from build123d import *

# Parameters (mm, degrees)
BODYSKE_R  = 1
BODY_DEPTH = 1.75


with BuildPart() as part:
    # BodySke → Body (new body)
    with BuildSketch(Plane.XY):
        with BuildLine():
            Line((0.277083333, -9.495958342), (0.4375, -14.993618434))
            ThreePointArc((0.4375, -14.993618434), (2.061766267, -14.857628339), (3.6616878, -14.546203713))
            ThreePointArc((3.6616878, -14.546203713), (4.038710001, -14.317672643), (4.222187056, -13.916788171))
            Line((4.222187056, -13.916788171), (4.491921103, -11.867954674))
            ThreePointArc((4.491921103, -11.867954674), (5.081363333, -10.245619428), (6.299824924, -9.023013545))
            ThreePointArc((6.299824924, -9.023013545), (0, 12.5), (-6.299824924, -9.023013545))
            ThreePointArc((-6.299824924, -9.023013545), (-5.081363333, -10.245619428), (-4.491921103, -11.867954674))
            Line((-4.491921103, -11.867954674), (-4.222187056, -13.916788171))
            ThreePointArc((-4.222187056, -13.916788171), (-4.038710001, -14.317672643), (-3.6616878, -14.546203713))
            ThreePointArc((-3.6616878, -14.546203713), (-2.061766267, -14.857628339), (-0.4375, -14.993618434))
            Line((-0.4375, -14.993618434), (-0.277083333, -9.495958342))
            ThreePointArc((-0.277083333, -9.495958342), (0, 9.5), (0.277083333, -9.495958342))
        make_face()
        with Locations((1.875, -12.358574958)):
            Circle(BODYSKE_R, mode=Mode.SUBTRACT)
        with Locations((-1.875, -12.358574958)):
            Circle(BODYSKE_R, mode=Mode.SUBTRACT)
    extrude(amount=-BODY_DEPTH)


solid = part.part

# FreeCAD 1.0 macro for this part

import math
import FreeCAD as App
import Part
import Sketcher

V = App.Vector
Q = App.Units.Quantity

doc = App.newDocument("Part")
body = doc.addObject("PartDesign::Body", "Body")

# Sketch on XY plane
sketch1 = body.newObject("Sketcher::SketchObject", "Sketch")
sketch1.AttachmentSupport = (doc.getObject("XY_Plane"), [""])
sketch1.MapMode = "FlatFace"
sketch1.addGeometry(Part.LineSegment(V(0.3, -9.5, 0), V(0.4, -15, 0)), False)
sketch1.addGeometry(Part.ArcOfCircle(Part.Circle(V(0, 0, 0), V(0, 0, 1), 15), math.radians(-88.33), math.radians(-75.87)), False)
sketch1.addGeometry(Part.ArcOfCircle(Part.Circle(V(3.5, -13.8, 0), V(0, 0, 1), 0.8), math.radians(-76), math.radians(-8)), False)
sketch1.addGeometry(Part.LineSegment(V(4.2, -13.9, 0), V(4.5, -11.9, 0)), False)
sketch1.addGeometry(Part.ArcOfCircle(Part.Circle(V(8.5, -12.4, 0), V(0, 0, 1), 4), math.radians(123), math.radians(173)), False)
sketch1.addGeometry(Part.ArcOfCircle(Part.Circle(V(0, 0.8, 0), V(0, 0, 1), 11.7), math.radians(-57), math.radians(237)), False)
sketch1.addGeometry(Part.ArcOfCircle(Part.Circle(V(-8.5, -12.4, 0), V(0, 0, 1), 4), math.radians(7), math.radians(57)), False)
sketch1.addGeometry(Part.LineSegment(V(-4.5, -11.9, 0), V(-4.2, -13.9, 0)), False)
sketch1.addGeometry(Part.ArcOfCircle(Part.Circle(V(-3.5, -13.8, 0), V(0, 0, 1), 0.8), math.radians(-172), math.radians(-104)), False)
sketch1.addGeometry(Part.ArcOfCircle(Part.Circle(V(0, 0, 0), V(0, 0, 1), 15), math.radians(-104.13), math.radians(-91.67)), False)
sketch1.addGeometry(Part.LineSegment(V(-0.4, -15, 0), V(-0.3, -9.5, 0)), False)
sketch1.addGeometry(Part.ArcOfCircle(Part.Circle(V(0, 0, 0), V(0, 0, 1), 9.5), math.radians(-88), math.radians(268)), False)
sketch1.addGeometry(Part.Circle(V(-1.9, -12.4, 0), V(0, 0, 1), 1), False)
sketch1.addGeometry(Part.Circle(V(1.9, -12.4, 0), V(0, 0, 1), 1), False)
sketch1.addConstraint(Sketcher.Constraint("Coincident", 0, 2, 1, 1))
sketch1.addConstraint(Sketcher.Constraint("Tangent", 1, 2, 2, 1))
sketch1.addConstraint(Sketcher.Constraint("Tangent", 2, 2, 3, 1))
sketch1.addConstraint(Sketcher.Constraint("Tangent", 3, 2, 4, 2))
sketch1.addConstraint(Sketcher.Constraint("Tangent", 4, 1, 5, 1))
sketch1.addConstraint(Sketcher.Constraint("Tangent", 5, 2, 6, 2))
sketch1.addConstraint(Sketcher.Constraint("Tangent", 6, 1, 7, 1))
sketch1.addConstraint(Sketcher.Constraint("Tangent", 7, 2, 8, 1))
sketch1.addConstraint(Sketcher.Constraint("Tangent", 8, 2, 9, 1))
sketch1.addConstraint(Sketcher.Constraint("Coincident", 9, 2, 10, 1))
sketch1.addConstraint(Sketcher.Constraint("Coincident", 10, 2, 11, 2))
sketch1.addConstraint(Sketcher.Constraint("Coincident", 11, 1, 0, 1))
sketch1.addConstraint(Sketcher.Constraint("Coincident", 1, 3, -1, 1))
sketch1.addConstraint(Sketcher.Constraint("Coincident", 9, 3, -1, 1))
sketch1.addConstraint(Sketcher.Constraint("Coincident", 11, 3, -1, 1))
sketch1.addConstraint(Sketcher.Constraint("Equal", 4, 6))
sketch1.addConstraint(Sketcher.Constraint("Equal", 2, 8))
sketch1.addConstraint(Sketcher.Constraint("Equal", 1, 9))
sketch1.addConstraint(Sketcher.Constraint("Equal", 12, 13))
sketch1.addConstraint(Sketcher.Constraint("Symmetric", 4, 3, 6, 3, -2))
sketch1.addConstraint(Sketcher.Constraint("Symmetric", 12, 3, 13, 3, -2))
sketch1.addConstraint(Sketcher.Constraint("Horizontal", 2, 3, 8, 3))
sketch1.addConstraint(Sketcher.Constraint("Horizontal", 0, 2, 9, 2))
sketch1.addConstraint(Sketcher.Constraint("Horizontal", 10, 2, 11, 1))
sketch1.addConstraint(Sketcher.Constraint("Diameter", 12, Q("2 mm")))
sketch1.addConstraint(Sketcher.Constraint("Radius", 1, Q("15 mm")))
sketch1.addConstraint(Sketcher.Constraint("Radius", 11, Q("9.5 mm")))
sketch1.addConstraint(Sketcher.Constraint("Radius", 2, Q("0.75 mm")))
sketch1.addConstraint(Sketcher.Constraint("Angle", 3, Q("82.5 deg")))
sketch1.addConstraint(Sketcher.Constraint("Radius", 5, Q("11.683492 mm")))
sketch1.addConstraint(Sketcher.Constraint("DistanceX", 12, 3, 13, 3, Q("3.75 mm")))
sketch1.addConstraint(Sketcher.Constraint("Radius", 4, Q("3.997687 mm")))
sketch1.addConstraint(Sketcher.Constraint("DistanceX", 9, 2, 0, 2, Q("0.875 mm")))
sketch1.addConstraint(Sketcher.Constraint("DistanceY", 2, 3, 5, 3, Q("14.635402 mm")))
sketch1.addConstraint(Sketcher.Constraint("DistanceX", 7, 2, 8, 2, Q("0.560499 mm")))
sketch1.addConstraint(Sketcher.Constraint("DistanceY", 10, 2, -1, 1, Q("9.495958 mm")))
sketch1.addConstraint(Sketcher.Constraint("DistanceY", 8, 3, 12, 3, Q("1.460319 mm")))
pad1 = body.newObject("PartDesign::Pad", "Pad")
pad1.Profile = sketch1
pad1.Length = 1.75
pad1.Reversed = True

doc.recompute()
